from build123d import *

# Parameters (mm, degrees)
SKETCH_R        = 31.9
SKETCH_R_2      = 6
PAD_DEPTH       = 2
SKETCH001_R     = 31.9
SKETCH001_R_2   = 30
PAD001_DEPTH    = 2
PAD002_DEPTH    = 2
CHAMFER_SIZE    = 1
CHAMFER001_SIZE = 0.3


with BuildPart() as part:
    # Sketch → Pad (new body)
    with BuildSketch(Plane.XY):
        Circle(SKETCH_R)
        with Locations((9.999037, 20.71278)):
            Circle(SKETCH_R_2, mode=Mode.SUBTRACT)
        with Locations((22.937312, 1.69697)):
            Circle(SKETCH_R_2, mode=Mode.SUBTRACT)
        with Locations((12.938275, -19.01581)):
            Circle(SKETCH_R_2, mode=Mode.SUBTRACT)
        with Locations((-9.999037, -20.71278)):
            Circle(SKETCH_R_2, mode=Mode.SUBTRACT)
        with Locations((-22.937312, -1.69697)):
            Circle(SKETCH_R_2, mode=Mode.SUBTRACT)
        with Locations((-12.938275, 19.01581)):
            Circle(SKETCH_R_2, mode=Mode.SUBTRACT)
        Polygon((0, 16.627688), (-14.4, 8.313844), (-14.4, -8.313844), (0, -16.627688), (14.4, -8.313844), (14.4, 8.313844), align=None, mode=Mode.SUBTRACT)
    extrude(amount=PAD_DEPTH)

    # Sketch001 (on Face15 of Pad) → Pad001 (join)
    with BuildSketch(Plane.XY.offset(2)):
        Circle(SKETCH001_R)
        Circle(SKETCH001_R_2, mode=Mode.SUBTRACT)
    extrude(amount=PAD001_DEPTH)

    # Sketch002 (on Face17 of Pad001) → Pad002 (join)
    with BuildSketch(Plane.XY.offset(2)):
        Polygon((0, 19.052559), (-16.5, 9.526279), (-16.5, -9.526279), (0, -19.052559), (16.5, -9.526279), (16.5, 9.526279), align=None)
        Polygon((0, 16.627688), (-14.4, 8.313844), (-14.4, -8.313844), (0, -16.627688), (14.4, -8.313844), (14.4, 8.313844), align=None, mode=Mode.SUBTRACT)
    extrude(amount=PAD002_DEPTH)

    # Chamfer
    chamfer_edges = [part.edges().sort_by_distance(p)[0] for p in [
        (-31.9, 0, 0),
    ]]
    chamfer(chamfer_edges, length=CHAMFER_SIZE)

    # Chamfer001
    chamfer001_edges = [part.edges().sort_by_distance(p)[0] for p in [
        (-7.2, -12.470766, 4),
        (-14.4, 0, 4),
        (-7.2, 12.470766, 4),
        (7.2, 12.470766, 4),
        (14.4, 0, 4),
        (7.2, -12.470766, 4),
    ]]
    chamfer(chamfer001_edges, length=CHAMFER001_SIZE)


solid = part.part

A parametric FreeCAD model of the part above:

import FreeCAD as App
import Part
import Sketcher

V = App.Vector
Q = App.Units.Quantity


def edges_at(feature, points):
    """Names of the edges that pass closest to the given points."""
    edges = feature.Shape.Edges
    near = lambda p: min(range(len(edges)), key=lambda i: edges[i].distToShape(Part.Vertex(*p))[0])
    return sorted({f"Edge{near(p) + 1}" for p in points})


def add_polygon(sketch, points):
    """Adds a closed chain of lines whose ends are joined by coincident constraints."""
    first, n = sketch.GeometryCount, len(points)
    for a, b in zip(points, points[1:] + points[:1]):
        sketch.addGeometry(Part.LineSegment(App.Vector(*a, 0), App.Vector(*b, 0)), False)
    for i in range(n):
        sketch.addConstraint(Sketcher.Constraint("Coincident", first + i, 2, first + (i + 1) % n, 1))

doc = App.newDocument("Part")
body = doc.addObject("PartDesign::Body", "Body")

# Sketch on XY plane
sketch1 = body.newObject("Sketcher::SketchObject", "Sketch")
sketch1.AttachmentSupport = (doc.getObject("XY_Plane"), [""])
sketch1.MapMode = "FlatFace"
sketch1.addGeometry(Part.Circle(V(0, 0, 0), V(0, 0, 1), 32), False)  # 0
sketch1.addGeometry(Part.Circle(V(-10, -21, 0), V(0, 0, 1), 6), False)  # 1
sketch1.addGeometry(Part.Circle(V(-23, -2, 0), V(0, 0, 1), 6), False)  # 2
sketch1.addGeometry(Part.Circle(V(13, -19, 0), V(0, 0, 1), 6), False)  # 3
sketch1.addGeometry(Part.Circle(V(-13, 19, 0), V(0, 0, 1), 6), False)  # 4
add_polygon(sketch1, [(-14, 8), (0, 17), (14, 8), (14, -8), (0, -17), (-14, -8)])  # lines 5-10
sketch1.addGeometry(Part.Circle(V(23, 2, 0), V(0, 0, 1), 6), False)  # 11
sketch1.addGeometry(Part.Circle(V(10, 21, 0), V(0, 0, 1), 6), False)  # 12
sketch1.addConstraint([
    Sketcher.Constraint("Vertical", 7),
    Sketcher.Constraint("Vertical", 10),
    Sketcher.Constraint("Coincident", 0, 3, -1, 1),
    Sketcher.Constraint("Equal", 1, 2),
    Sketcher.Constraint("Equal", 2, 3),
    Sketcher.Constraint("Equal", 3, 4),
    Sketcher.Constraint("Equal", 4, 11),
    Sketcher.Constraint("Equal", 11, 12),
    Sketcher.Constraint("Symmetric", 3, 3, 4, 3, -1, 1),
    Sketcher.Constraint("Symmetric", 2, 3, 11, 3, -1, 1),
    Sketcher.Constraint("Symmetric", 1, 3, 12, 3, -1, 1),
    Sketcher.Constraint("Symmetric", 5, 2, 8, 2, -1, 1),
    Sketcher.Constraint("Symmetric", 6, 2, 9, 2, -1, 1),
    Sketcher.Constraint("PointOnObject", 5, 2, -2),
    Sketcher.Constraint("Parallel", 5, 8),
    Sketcher.Constraint("Horizontal", 7, 2, 9, 2),
    Sketcher.Constraint("Diameter", 1, 12.0),
    Sketcher.Constraint("Diameter", 0, 63.8),
    Sketcher.Constraint("Angle", 5, Q("30 deg")),
    Sketcher.Constraint("DistanceX", -1, 1, 6, 2, 14.4),
    Sketcher.Constraint("DistanceY", 7, 2, 7, 1, 16.627688),
    Sketcher.Constraint("DistanceY", 1, 3, -1, 1, 20.71278),
    Sketcher.Constraint("DistanceX", 2, 3, -1, 1, 22.937312),
    Sketcher.Constraint("DistanceY", 2, 3, -1, 1, 1.69697),
    Sketcher.Constraint("DistanceY", 3, 3, -1, 1, 19.01581),
    Sketcher.Constraint("DistanceX", 1, 3, 3, 3, 22.937312),
    Sketcher.Constraint("DistanceX", 4, 3, 1, 3, 2.939238),
])
pad1 = body.newObject("PartDesign::Pad", "Pad")
pad1.Profile = sketch1
pad1.Length = 2

# Sketch on XY plane
sketch2 = body.newObject("Sketcher::SketchObject", "Sketch001")
sketch2.AttachmentSupport = (doc.getObject("XY_Plane"), [""])
sketch2.MapMode = "FlatFace"
sketch2.AttachmentOffset = App.Placement(V(0, 0, 2), App.Rotation())
sketch2.addGeometry([
    Part.Circle(V(0, 0, 0), V(0, 0, 1), 32),
    Part.Circle(V(0, 0, 0), V(0, 0, 1), 30),
], False)
sketch2.addConstraint([
    Sketcher.Constraint("Coincident", 0, 3, -1, 1),
    Sketcher.Constraint("Coincident", 1, 3, -1, 1),
    Sketcher.Constraint("Diameter", 1, 60.0),
    Sketcher.Constraint("Diameter", 0, 63.8),
])
pad2 = body.newObject("PartDesign::Pad", "Pad001")
pad2.Profile = sketch2
pad2.Length = 2

# Sketch on XY plane
sketch3 = body.newObject("Sketcher::SketchObject", "Sketch002")
sketch3.AttachmentSupport = (doc.getObject("XY_Plane"), [""])
sketch3.MapMode = "FlatFace"
sketch3.AttachmentOffset = App.Placement(V(0, 0, 2), App.Rotation())
add_polygon(sketch3, [(0, 19), (-16, 10), (-16, -10), (0, -19), (16, -10), (16, 10)])  # lines 0-5
add_polygon(sketch3, [(-14, 8), (0, 17), (14, 8), (14, -8), (0, -17), (-14, -8)])  # lines 6-11
sketch3.addConstraint([
    Sketcher.Constraint("Vertical", 1),
    Sketcher.Constraint("Vertical", 4),
    Sketcher.Constraint("Vertical", 8),
    Sketcher.Constraint("Vertical", 11),
    Sketcher.Constraint("Symmetric", 0, 2, 3, 2, -1, 1),
    Sketcher.Constraint("Symmetric", 2, 2, 5, 2, -1, 1),
    Sketcher.Constraint("Symmetric", 6, 2, 9, 2, -1, 1),
    Sketcher.Constraint("Symmetric", 7, 2, 10, 2, -1, 1),
    Sketcher.Constraint("PointOnObject", 2, 2, -2),
    Sketcher.Constraint("PointOnObject", 6, 2, -2),
    Sketcher.Constraint("Parallel", 2, 5),
    Sketcher.Constraint("Parallel", 3, 6),
    Sketcher.Constraint("Parallel", 5, 7),
    Sketcher.Constraint("Parallel", 6, 9),
    Sketcher.Constraint("Horizontal", 1, 2, 3, 2),
    Sketcher.Constraint("Angle", 0, Q("-149.999999 deg")),
    Sketcher.Constraint("DistanceX", 1, 2, 3, 2, 33.0),
    Sketcher.Constraint("DistanceX", -1, 1, 7, 2, 14.4),
    Sketcher.Constraint("DistanceY", 1, 2, 1, 1, 19.052558),
    Sketcher.Constraint("DistanceY", 8, 2, 8, 1, 16.627688),
])
pad3 = body.newObject("PartDesign::Pad", "Pad002")
pad3.Profile = sketch3
pad3.Length = 2
doc.recompute()

chamfer = body.newObject("PartDesign::Chamfer", "Chamfer")
chamfer.Base = (pad3, edges_at(pad3, [(-31.9, 0, 0)]))
chamfer.Size = 1
doc.recompute()

chamfer2 = body.newObject("PartDesign::Chamfer", "Chamfer001")
chamfer2.Base = (chamfer, edges_at(chamfer, [
    (-7.2, -12.471, 4),
    (-14.4, 0, 4),
    (-7.2, 12.471, 4),
    (7.2, 12.471, 4),
    (14.4, 0, 4),
    (7.2, -12.471, 4),
]))
chamfer2.Size = 0.3

doc.recompute()
